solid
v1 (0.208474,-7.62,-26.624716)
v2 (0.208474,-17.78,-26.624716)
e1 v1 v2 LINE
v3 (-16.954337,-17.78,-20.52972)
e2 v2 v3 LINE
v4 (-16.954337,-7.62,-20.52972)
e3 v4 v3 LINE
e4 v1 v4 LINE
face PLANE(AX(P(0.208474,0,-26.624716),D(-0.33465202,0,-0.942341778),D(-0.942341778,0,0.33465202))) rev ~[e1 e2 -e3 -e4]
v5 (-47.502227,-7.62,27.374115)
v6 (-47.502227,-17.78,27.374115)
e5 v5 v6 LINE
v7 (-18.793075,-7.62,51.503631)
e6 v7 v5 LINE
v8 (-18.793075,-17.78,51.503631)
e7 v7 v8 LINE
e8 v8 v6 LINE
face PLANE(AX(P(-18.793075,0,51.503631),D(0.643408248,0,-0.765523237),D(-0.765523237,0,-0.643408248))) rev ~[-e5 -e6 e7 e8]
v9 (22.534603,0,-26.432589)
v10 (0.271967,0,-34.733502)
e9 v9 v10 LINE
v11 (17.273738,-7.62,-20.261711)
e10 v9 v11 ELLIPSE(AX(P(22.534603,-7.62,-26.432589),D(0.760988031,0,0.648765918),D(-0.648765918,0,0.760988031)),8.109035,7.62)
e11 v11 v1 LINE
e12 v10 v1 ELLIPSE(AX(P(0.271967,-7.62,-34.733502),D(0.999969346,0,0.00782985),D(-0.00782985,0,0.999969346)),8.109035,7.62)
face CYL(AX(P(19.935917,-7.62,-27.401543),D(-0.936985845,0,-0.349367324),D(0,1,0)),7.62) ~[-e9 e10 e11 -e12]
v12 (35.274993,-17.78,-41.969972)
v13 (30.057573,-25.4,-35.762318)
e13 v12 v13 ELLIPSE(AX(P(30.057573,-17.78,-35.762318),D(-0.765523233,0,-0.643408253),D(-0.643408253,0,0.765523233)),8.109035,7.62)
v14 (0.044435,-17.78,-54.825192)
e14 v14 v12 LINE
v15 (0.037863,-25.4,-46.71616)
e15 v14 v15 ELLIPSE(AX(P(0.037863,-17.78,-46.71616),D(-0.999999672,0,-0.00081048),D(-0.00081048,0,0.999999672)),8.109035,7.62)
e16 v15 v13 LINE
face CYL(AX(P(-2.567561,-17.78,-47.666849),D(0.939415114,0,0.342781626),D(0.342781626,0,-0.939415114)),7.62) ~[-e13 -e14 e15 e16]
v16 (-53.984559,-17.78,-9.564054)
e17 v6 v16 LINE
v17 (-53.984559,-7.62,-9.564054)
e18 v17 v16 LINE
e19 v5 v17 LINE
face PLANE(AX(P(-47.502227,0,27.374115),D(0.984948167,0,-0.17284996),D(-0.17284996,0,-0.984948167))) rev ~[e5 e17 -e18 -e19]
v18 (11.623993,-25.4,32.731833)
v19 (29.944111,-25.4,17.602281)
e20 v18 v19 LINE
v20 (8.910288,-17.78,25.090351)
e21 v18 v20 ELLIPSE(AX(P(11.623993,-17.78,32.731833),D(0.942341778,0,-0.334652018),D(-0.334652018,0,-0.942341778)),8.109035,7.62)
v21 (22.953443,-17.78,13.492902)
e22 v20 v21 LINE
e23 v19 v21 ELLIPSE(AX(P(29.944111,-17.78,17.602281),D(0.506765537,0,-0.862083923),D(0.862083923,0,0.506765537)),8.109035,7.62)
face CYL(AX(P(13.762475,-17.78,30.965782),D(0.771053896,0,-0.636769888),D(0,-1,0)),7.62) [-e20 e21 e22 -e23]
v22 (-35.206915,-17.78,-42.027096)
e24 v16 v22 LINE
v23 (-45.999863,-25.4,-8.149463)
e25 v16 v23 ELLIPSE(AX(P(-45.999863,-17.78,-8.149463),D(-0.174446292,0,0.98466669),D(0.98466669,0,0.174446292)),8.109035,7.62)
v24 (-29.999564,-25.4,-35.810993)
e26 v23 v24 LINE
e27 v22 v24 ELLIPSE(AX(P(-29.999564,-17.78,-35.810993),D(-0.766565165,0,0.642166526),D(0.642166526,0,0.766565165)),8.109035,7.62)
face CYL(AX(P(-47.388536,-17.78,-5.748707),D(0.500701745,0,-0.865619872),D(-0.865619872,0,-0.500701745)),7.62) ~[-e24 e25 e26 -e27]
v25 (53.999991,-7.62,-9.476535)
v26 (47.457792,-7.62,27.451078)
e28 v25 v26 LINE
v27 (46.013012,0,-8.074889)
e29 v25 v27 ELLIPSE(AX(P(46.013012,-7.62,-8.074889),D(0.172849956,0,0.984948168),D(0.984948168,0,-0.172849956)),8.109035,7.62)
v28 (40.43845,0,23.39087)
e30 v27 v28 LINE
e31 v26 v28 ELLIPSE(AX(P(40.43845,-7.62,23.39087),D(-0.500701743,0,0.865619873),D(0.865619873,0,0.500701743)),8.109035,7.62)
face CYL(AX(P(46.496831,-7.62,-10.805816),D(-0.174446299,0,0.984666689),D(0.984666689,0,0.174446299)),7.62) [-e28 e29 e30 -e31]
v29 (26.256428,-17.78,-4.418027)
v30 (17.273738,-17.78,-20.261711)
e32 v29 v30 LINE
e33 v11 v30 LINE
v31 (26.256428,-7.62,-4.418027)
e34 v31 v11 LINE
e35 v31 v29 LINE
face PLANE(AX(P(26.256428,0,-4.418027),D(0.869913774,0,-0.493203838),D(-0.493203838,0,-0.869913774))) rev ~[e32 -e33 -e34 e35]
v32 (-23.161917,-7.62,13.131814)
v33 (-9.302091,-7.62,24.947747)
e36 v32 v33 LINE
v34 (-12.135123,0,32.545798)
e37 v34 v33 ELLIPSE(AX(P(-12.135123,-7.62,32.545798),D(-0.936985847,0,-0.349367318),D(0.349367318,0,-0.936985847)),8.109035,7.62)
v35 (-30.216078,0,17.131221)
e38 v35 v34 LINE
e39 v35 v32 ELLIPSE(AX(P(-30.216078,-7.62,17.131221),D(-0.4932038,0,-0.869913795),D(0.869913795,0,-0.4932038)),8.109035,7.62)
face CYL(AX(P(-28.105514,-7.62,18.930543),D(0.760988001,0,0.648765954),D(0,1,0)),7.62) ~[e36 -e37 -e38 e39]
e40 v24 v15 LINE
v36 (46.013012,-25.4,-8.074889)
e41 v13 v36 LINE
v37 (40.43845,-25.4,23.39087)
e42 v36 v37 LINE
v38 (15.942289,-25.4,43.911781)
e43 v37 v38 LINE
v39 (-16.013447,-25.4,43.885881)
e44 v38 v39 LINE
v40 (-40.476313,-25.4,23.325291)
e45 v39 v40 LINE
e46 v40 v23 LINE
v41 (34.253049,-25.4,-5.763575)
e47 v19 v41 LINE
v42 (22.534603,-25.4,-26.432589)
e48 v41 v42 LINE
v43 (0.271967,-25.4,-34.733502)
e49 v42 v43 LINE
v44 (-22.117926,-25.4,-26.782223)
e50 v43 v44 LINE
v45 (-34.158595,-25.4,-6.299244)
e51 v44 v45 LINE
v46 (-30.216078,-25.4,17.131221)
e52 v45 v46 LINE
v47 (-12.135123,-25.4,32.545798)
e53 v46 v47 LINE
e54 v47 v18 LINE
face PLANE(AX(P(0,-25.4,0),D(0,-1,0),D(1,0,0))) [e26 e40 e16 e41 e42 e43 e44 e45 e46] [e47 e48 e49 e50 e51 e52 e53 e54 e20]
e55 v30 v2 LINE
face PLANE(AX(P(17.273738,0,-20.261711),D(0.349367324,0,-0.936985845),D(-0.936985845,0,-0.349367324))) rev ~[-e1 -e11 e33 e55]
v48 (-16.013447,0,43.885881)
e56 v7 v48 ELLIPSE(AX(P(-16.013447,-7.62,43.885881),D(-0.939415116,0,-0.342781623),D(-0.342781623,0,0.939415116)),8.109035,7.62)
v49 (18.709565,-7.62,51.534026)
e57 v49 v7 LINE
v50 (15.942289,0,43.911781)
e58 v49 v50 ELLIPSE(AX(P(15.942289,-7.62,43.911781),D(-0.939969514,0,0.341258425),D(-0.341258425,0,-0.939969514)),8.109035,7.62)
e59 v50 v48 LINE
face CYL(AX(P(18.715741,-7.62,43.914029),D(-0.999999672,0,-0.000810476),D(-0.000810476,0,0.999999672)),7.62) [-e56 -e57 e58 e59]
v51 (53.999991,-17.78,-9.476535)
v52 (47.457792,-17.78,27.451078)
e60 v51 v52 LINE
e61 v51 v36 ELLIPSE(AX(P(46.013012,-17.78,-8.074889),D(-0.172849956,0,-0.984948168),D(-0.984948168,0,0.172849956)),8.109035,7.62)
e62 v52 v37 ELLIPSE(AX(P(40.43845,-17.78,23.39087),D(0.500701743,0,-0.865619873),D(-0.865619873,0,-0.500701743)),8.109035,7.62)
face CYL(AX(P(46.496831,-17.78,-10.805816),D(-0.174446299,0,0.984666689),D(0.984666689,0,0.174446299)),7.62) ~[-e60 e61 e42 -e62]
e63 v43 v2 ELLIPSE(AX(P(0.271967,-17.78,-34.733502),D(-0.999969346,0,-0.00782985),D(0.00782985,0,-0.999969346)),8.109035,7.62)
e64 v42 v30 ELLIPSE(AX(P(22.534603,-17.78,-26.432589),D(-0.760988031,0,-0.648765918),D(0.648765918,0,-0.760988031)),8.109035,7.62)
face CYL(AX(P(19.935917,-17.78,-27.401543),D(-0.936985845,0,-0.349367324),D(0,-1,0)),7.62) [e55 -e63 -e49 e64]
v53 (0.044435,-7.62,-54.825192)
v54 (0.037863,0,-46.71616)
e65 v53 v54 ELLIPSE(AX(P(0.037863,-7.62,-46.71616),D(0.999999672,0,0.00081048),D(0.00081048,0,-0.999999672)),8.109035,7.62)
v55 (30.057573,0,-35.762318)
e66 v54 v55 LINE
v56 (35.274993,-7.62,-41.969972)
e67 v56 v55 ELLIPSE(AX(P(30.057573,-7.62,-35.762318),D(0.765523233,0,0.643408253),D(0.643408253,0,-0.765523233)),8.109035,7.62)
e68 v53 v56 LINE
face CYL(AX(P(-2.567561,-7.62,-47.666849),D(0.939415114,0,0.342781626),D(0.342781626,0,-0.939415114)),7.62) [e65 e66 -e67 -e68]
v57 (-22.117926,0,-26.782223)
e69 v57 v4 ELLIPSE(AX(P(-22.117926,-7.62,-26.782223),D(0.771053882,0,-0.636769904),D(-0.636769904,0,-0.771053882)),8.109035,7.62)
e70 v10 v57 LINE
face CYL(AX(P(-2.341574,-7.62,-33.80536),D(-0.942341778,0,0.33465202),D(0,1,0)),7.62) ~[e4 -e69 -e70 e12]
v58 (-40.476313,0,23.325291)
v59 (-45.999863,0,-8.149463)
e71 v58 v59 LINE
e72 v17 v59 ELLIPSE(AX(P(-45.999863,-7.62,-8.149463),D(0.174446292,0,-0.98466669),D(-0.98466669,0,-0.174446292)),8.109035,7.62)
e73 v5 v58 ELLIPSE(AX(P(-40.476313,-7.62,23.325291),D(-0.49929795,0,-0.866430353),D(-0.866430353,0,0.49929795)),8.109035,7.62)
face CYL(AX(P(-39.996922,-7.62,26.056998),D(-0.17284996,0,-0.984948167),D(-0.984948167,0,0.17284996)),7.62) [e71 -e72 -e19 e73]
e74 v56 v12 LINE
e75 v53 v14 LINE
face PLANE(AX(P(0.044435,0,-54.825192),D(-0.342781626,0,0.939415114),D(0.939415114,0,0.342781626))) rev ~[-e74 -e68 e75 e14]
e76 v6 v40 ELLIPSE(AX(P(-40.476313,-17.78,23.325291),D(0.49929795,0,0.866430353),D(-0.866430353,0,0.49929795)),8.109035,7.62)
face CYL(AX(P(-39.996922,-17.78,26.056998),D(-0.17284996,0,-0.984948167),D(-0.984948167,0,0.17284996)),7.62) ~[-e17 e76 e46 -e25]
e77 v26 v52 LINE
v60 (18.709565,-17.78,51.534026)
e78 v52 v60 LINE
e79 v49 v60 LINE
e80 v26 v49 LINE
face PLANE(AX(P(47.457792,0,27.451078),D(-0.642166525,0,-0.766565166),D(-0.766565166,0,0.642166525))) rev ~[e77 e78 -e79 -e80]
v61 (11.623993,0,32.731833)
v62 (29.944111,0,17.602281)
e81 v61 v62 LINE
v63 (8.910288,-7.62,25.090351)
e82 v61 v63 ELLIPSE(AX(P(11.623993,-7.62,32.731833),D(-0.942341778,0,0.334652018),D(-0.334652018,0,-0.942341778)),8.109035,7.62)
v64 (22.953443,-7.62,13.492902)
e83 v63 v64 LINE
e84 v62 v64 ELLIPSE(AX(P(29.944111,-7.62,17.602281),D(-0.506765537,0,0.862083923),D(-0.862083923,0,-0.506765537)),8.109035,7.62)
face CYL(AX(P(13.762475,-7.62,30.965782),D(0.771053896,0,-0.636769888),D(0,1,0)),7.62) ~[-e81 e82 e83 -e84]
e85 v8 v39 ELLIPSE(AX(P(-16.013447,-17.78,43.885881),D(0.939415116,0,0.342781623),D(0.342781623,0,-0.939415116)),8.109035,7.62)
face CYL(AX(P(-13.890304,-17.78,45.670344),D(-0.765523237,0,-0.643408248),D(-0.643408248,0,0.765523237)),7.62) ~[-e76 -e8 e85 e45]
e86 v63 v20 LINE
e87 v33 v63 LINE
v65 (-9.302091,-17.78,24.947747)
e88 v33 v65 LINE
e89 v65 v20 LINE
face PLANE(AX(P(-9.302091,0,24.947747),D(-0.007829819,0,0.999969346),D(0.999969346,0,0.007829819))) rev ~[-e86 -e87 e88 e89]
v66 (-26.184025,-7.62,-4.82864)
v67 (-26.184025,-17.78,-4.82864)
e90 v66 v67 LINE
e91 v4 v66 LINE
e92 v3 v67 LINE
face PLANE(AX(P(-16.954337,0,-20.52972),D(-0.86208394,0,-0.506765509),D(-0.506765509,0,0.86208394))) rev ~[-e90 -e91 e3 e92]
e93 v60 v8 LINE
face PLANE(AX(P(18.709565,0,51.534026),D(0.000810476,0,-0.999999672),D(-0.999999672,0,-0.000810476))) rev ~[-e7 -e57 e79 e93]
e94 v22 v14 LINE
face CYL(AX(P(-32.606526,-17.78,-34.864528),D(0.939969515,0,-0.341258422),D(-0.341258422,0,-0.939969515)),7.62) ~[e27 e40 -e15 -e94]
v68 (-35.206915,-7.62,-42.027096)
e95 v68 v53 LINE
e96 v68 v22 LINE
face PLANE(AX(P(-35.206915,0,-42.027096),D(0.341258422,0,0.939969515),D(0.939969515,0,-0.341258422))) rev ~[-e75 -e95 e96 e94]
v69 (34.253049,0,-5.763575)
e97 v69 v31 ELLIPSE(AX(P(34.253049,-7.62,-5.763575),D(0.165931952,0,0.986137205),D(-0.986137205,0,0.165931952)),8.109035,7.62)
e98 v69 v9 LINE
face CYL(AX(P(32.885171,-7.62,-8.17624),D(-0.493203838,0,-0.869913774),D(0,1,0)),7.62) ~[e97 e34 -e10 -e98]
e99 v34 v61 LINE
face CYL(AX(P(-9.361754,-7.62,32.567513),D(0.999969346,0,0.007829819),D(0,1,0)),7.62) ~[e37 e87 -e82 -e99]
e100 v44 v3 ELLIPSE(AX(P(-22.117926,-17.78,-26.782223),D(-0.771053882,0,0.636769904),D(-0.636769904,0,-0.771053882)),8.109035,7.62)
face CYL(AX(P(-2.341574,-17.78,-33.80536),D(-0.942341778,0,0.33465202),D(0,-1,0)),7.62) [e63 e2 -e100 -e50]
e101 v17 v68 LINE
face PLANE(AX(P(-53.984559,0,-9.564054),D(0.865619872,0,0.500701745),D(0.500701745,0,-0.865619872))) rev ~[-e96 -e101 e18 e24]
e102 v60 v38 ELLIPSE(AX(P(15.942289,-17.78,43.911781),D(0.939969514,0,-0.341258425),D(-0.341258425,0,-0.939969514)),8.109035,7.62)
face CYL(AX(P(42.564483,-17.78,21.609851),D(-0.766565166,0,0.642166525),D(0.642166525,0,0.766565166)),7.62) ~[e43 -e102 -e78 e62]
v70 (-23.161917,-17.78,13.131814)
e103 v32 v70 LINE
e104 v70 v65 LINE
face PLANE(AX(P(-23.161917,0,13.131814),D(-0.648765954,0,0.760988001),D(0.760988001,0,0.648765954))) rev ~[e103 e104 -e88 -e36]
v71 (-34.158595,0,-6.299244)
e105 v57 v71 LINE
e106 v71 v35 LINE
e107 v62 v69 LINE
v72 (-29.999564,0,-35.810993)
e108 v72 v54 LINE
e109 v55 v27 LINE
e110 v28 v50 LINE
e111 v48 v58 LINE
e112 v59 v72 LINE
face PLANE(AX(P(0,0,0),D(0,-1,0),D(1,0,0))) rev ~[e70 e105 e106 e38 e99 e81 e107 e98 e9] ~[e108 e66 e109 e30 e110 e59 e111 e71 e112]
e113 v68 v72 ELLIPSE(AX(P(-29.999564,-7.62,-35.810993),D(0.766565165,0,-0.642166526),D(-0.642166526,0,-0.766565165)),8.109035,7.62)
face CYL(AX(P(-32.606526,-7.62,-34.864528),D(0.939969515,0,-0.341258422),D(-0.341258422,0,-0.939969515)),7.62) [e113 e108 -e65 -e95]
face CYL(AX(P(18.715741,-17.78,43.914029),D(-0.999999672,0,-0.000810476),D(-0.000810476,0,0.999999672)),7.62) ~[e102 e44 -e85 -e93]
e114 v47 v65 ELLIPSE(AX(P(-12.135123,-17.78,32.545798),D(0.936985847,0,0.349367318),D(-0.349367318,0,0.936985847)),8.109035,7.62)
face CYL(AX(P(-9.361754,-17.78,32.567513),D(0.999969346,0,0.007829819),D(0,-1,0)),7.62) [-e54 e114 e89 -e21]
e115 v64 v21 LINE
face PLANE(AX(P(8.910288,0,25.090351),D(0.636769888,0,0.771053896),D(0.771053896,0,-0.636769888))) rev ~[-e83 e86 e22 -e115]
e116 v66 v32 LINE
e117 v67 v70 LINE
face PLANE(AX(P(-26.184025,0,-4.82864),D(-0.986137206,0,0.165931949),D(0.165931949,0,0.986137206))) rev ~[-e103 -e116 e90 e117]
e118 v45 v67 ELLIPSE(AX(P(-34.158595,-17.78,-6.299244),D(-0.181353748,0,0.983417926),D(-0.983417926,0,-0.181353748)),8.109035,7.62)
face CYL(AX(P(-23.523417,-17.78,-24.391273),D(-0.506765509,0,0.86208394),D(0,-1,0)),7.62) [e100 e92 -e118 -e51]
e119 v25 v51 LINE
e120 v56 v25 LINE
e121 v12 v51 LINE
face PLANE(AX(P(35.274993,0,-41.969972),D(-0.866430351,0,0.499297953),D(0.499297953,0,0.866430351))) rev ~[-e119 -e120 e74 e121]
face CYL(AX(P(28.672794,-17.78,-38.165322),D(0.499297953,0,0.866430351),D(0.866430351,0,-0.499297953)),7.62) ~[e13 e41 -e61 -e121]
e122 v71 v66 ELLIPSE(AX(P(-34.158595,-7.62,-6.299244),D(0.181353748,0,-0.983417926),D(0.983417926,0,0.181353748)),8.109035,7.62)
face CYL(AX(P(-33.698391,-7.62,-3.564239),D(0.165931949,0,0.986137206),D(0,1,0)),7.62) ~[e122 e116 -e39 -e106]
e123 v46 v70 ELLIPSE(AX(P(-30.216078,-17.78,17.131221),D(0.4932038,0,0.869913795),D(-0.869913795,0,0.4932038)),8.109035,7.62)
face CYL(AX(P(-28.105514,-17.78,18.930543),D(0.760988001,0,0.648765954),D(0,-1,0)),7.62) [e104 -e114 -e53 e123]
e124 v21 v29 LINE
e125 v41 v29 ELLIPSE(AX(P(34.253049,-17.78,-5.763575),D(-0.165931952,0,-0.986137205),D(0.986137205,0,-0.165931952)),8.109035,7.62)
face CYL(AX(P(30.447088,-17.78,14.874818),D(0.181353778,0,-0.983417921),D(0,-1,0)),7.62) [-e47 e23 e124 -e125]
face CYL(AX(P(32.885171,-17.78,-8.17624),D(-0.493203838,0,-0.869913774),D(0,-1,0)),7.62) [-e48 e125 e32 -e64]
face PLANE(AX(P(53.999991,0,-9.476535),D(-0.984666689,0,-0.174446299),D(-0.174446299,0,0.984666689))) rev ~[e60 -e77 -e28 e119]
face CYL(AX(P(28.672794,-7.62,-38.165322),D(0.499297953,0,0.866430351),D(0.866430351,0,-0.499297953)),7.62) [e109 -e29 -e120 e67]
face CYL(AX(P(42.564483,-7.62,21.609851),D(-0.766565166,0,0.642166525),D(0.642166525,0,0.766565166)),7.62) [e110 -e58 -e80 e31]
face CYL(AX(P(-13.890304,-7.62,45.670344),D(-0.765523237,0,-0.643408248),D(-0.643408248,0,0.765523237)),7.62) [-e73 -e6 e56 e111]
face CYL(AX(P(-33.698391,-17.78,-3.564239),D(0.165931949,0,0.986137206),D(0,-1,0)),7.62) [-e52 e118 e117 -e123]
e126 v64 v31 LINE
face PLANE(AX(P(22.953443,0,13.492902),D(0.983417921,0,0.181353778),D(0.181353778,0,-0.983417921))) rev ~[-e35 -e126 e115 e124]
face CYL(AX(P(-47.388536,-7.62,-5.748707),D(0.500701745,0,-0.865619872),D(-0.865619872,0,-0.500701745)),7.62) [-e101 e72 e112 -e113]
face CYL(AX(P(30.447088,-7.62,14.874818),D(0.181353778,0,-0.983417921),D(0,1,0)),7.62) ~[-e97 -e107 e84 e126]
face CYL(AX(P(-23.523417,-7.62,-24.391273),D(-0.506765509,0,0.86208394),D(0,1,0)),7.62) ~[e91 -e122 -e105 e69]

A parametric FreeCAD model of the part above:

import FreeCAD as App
import Part
import Sketcher
Q = App.Units.Quantity


def edges_at(feature, points):
    """Names of the edges that pass closest to the given points."""
    edges = feature.Shape.Edges
    near = lambda p: min(range(len(edges)), key=lambda i: edges[i].distToShape(Part.Vertex(*p))[0])
    return sorted({f"Edge{near(p) + 1}" for p in points})

doc = App.newDocument("Part")
body = doc.addObject("PartDesign::Body", "Body")

# Sketch on XZ plane
sketch1 = body.newObject("Sketcher::SketchObject", "Sketch")
sketch1.AttachmentSupport = (doc.getObject("XZ_Plane"), [""])
sketch1.MapMode = "FlatFace"
sketch1.addGeometry(Part.LineSegment(App.Vector(-53.984559, -9.564054, 0), App.Vector(-35.206915, -42.027096, 0)), False)
sketch1.addGeometry(Part.LineSegment(App.Vector(-35.206915, -42.027096, 0), App.Vector(0.044435, -54.825192, 0)), False)
sketch1.addGeometry(Part.LineSegment(App.Vector(0.044435, -54.825192, 0), App.Vector(35.274993, -41.969972, 0)), False)
sketch1.addGeometry(Part.LineSegment(App.Vector(35.274993, -41.969972, 0), App.Vector(53.999991, -9.476535, 0)), False)
sketch1.addGeometry(Part.LineSegment(App.Vector(53.999991, -9.476535, 0), App.Vector(47.457792, 27.451078, 0)), False)
sketch1.addGeometry(Part.LineSegment(App.Vector(47.457792, 27.451078, 0), App.Vector(18.709565, 51.534026, 0)), False)
sketch1.addGeometry(Part.LineSegment(App.Vector(18.709565, 51.534026, 0), App.Vector(-18.793075, 51.503631, 0)), False)
sketch1.addGeometry(Part.LineSegment(App.Vector(-18.793075, 51.503631, 0), App.Vector(-47.502227, 27.374115, 0)), False)
sketch1.addGeometry(Part.LineSegment(App.Vector(-47.502227, 27.374115, 0), App.Vector(-53.984559, -9.564054, 0)), False)
sketch1.addGeometry(Part.LineSegment(App.Vector(17.273738, -20.261711, 0), App.Vector(0.208474, -26.624716, 0)), False)
sketch1.addGeometry(Part.LineSegment(App.Vector(0.208474, -26.624716, 0), App.Vector(-16.954337, -20.52972, 0)), False)
sketch1.addGeometry(Part.LineSegment(App.Vector(-16.954337, -20.52972, 0), App.Vector(-26.184025, -4.82864, 0)), False)
sketch1.addGeometry(Part.LineSegment(App.Vector(-26.184025, -4.82864, 0), App.Vector(-23.161917, 13.131814, 0)), False)
sketch1.addGeometry(Part.LineSegment(App.Vector(-23.161917, 13.131814, 0), App.Vector(-9.302091, 24.947747, 0)), False)
sketch1.addGeometry(Part.LineSegment(App.Vector(-9.302091, 24.947747, 0), App.Vector(8.910288, 25.090351, 0)), False)
sketch1.addGeometry(Part.LineSegment(App.Vector(8.910288, 25.090351, 0), App.Vector(22.953443, 13.492902, 0)), False)
sketch1.addGeometry(Part.LineSegment(App.Vector(22.953443, 13.492902, 0), App.Vector(26.256428, -4.418027, 0)), False)
sketch1.addGeometry(Part.LineSegment(App.Vector(26.256428, -4.418027, 0), App.Vector(17.273738, -20.261711, 0)), False)
sketch1.addConstraint(Sketcher.Constraint("Coincident", 0, 2, 1, 1))
sketch1.addConstraint(Sketcher.Constraint("Coincident", 1, 2, 2, 1))
sketch1.addConstraint(Sketcher.Constraint("Coincident", 2, 2, 3, 1))
sketch1.addConstraint(Sketcher.Constraint("Coincident", 3, 2, 4, 1))
sketch1.addConstraint(Sketcher.Constraint("Coincident", 4, 2, 5, 1))
sketch1.addConstraint(Sketcher.Constraint("Coincident", 5, 2, 6, 1))
sketch1.addConstraint(Sketcher.Constraint("Coincident", 6, 2, 7, 1))
sketch1.addConstraint(Sketcher.Constraint("Coincident", 7, 2, 8, 1))
sketch1.addConstraint(Sketcher.Constraint("Coincident", 8, 2, 0, 1))
sketch1.addConstraint(Sketcher.Constraint("Coincident", 9, 2, 10, 1))
sketch1.addConstraint(Sketcher.Constraint("Coincident", 10, 2, 11, 1))
sketch1.addConstraint(Sketcher.Constraint("Coincident", 11, 2, 12, 1))
sketch1.addConstraint(Sketcher.Constraint("Coincident", 12, 2, 13, 1))
sketch1.addConstraint(Sketcher.Constraint("Coincident", 13, 2, 14, 1))
sketch1.addConstraint(Sketcher.Constraint("Coincident", 14, 2, 15, 1))
sketch1.addConstraint(Sketcher.Constraint("Coincident", 15, 2, 16, 1))
sketch1.addConstraint(Sketcher.Constraint("Coincident", 16, 2, 17, 1))
sketch1.addConstraint(Sketcher.Constraint("Coincident", 17, 2, 9, 1))
sketch1.addConstraint(Sketcher.Constraint("DistanceX", 4, 2, 3, 2, 6.542199))
sketch1.addConstraint(Sketcher.Constraint("DistanceX", 2, 2, 4, 2, 12.182799))
sketch1.addConstraint(Sketcher.Constraint("DistanceX", 11, 2, 9, 2, 26.392499))
sketch1.addConstraint(Sketcher.Constraint("DistanceX", 7, 2, 11, 2, 21.318202))
sketch1.addConstraint(Sketcher.Constraint("DistanceY", 12, 2, 7, 2, 14.242301))
sketch1.addConstraint(Sketcher.Constraint("Distance", 2, 37.502652))
sketch1.addConstraint(Sketcher.Constraint("DistanceY", 2, 2, -1, 1, 41.969972))
sketch1.addConstraint(Sketcher.Constraint("DistanceX", -1, 1, 3, 2, 53.999991))
sketch1.addConstraint(Sketcher.Constraint("DistanceY", -1, 1, 6, 2, 51.503631))
sketch1.addConstraint(Sketcher.Constraint("DistanceX", 8, 2, -1, 1, 53.984559))
sketch1.addConstraint(Sketcher.Constraint("DistanceY", 10, 2, -1, 1, 20.52972))
sketch1.addConstraint(Sketcher.Constraint("DistanceY", 11, 2, -1, 1, 4.82864))
sketch1.addConstraint(Sketcher.Constraint("DistanceX", 13, 2, -1, 1, 9.302091))
sketch1.addConstraint(Sketcher.Constraint("DistanceY", -1, 1, 14, 2, 25.090351))
sketch1.addConstraint(Sketcher.Constraint("DistanceX", -1, 1, 17, 2, 17.273738))
sketch1.addConstraint(Sketcher.Constraint("DistanceY", 17, 2, -1, 1, 20.261711))
sketch1.addConstraint(Sketcher.Constraint("DistanceX", 0, 2, 1, 2, 35.25135))
sketch1.addConstraint(Sketcher.Constraint("DistanceX", 1, 2, 2, 2, 35.230558))
sketch1.addConstraint(Sketcher.Constraint("DistanceY", 0, 2, 3, 2, 32.550561))
sketch1.addConstraint(Sketcher.Constraint("DistanceY", 2, 2, 4, 2, 69.42105))
sketch1.addConstraint(Sketcher.Constraint("DistanceY", 3, 2, 5, 2, 61.010561))
sketch1.addConstraint(Sketcher.Constraint("DistanceX", 5, 2, 2, 2, 16.565428))
sketch1.addConstraint(Sketcher.Constraint("DistanceY", 1, 2, 5, 2, 106.359218))
sketch1.addConstraint(Sketcher.Constraint("DistanceX", 6, 2, 5, 2, 37.50264))
sketch1.addConstraint(Sketcher.Constraint("DistanceX", 7, 2, 6, 2, 28.709152))
sketch1.addConstraint(Sketcher.Constraint("DistanceY", 7, 2, 5, 2, 24.159911))
sketch1.addConstraint(Sketcher.Constraint("DistanceY", 8, 2, 7, 2, 36.938169))
sketch1.addConstraint(Sketcher.Constraint("DistanceY", 0, 2, 9, 2, 15.40238))
sketch1.addConstraint(Sketcher.Constraint("DistanceX", 10, 2, 9, 2, 17.162811))
sketch1.addConstraint(Sketcher.Constraint("DistanceX", 7, 2, 12, 2, 24.34031))
sketch1.addConstraint(Sketcher.Constraint("DistanceY", 13, 2, 7, 2, 2.426368))
sketch1.addConstraint(Sketcher.Constraint("DistanceX", 13, 2, 14, 2, 18.212379))
sketch1.addConstraint(Sketcher.Constraint("DistanceY", 15, 2, 14, 2, 11.597449))
sketch1.addConstraint(Sketcher.Constraint("DistanceX", 15, 2, 4, 2, 24.504349))
sketch1.addConstraint(Sketcher.Constraint("DistanceY", 16, 2, 15, 2, 17.910929))
sketch1.addConstraint(Sketcher.Constraint("DistanceX", 14, 2, 16, 2, 17.34614))
pad1 = body.newObject("PartDesign::Pad", "Pad")
pad1.Profile = sketch1
pad1.Length = Q("1 in")
doc.recompute()

fillet = body.newObject("PartDesign::Fillet", "Fillet")
fillet.Base = (pad1, edges_at(pad1, [
    (-0.042, 0, 51.519),
    (-33.148, 0, 39.439),
    (-50.743, 0, 8.905),
    (-44.596, 0, -25.796),
    (-17.581, 0, -48.426),
    (17.66, 0, -48.398),
    (44.637, 0, -25.723),
    (50.729, 0, 8.987),
    (33.084, 0, 39.493),
    (-33.148, -25.4, 39.439),
    (-0.042, -25.4, 51.519),
    (33.084, -25.4, 39.493),
    (50.729, -25.4, 8.987),
    (44.637, -25.4, -25.723),
    (17.66, -25.4, -48.398),
    (-17.581, -25.4, -48.426),
    (-44.596, -25.4, -25.796),
    (-50.743, -25.4, 8.905),
]))
fillet.Radius = Q("0.3 in")
doc.recompute()

fillet2 = body.newObject("PartDesign::Fillet", "Fillet001")
fillet2.Base = (fillet, edges_at(fillet, [
    (15.932, -25.4, 19.292),
    (24.605, -25.4, 4.537),
    (21.765, -25.4, -12.34),
    (8.741, -25.4, -23.443),
    (-8.373, -25.4, -23.577),
    (-21.569, -25.4, -12.679),
    (-24.673, -25.4, 4.152),
    (-16.232, -25.4, 19.04),
    (-0.196, -25.4, 25.019),
    (-8.373, 0, -23.577),
    (8.741, 0, -23.443),
    (21.765, 0, -12.34),
    (24.605, 0, 4.537),
    (15.932, 0, 19.292),
    (-0.196, 0, 25.019),
    (-16.232, 0, 19.04),
    (-24.673, 0, 4.152),
    (-21.569, 0, -12.679),
]))
fillet2.Radius = Q("0.3 in")

doc.recompute()
